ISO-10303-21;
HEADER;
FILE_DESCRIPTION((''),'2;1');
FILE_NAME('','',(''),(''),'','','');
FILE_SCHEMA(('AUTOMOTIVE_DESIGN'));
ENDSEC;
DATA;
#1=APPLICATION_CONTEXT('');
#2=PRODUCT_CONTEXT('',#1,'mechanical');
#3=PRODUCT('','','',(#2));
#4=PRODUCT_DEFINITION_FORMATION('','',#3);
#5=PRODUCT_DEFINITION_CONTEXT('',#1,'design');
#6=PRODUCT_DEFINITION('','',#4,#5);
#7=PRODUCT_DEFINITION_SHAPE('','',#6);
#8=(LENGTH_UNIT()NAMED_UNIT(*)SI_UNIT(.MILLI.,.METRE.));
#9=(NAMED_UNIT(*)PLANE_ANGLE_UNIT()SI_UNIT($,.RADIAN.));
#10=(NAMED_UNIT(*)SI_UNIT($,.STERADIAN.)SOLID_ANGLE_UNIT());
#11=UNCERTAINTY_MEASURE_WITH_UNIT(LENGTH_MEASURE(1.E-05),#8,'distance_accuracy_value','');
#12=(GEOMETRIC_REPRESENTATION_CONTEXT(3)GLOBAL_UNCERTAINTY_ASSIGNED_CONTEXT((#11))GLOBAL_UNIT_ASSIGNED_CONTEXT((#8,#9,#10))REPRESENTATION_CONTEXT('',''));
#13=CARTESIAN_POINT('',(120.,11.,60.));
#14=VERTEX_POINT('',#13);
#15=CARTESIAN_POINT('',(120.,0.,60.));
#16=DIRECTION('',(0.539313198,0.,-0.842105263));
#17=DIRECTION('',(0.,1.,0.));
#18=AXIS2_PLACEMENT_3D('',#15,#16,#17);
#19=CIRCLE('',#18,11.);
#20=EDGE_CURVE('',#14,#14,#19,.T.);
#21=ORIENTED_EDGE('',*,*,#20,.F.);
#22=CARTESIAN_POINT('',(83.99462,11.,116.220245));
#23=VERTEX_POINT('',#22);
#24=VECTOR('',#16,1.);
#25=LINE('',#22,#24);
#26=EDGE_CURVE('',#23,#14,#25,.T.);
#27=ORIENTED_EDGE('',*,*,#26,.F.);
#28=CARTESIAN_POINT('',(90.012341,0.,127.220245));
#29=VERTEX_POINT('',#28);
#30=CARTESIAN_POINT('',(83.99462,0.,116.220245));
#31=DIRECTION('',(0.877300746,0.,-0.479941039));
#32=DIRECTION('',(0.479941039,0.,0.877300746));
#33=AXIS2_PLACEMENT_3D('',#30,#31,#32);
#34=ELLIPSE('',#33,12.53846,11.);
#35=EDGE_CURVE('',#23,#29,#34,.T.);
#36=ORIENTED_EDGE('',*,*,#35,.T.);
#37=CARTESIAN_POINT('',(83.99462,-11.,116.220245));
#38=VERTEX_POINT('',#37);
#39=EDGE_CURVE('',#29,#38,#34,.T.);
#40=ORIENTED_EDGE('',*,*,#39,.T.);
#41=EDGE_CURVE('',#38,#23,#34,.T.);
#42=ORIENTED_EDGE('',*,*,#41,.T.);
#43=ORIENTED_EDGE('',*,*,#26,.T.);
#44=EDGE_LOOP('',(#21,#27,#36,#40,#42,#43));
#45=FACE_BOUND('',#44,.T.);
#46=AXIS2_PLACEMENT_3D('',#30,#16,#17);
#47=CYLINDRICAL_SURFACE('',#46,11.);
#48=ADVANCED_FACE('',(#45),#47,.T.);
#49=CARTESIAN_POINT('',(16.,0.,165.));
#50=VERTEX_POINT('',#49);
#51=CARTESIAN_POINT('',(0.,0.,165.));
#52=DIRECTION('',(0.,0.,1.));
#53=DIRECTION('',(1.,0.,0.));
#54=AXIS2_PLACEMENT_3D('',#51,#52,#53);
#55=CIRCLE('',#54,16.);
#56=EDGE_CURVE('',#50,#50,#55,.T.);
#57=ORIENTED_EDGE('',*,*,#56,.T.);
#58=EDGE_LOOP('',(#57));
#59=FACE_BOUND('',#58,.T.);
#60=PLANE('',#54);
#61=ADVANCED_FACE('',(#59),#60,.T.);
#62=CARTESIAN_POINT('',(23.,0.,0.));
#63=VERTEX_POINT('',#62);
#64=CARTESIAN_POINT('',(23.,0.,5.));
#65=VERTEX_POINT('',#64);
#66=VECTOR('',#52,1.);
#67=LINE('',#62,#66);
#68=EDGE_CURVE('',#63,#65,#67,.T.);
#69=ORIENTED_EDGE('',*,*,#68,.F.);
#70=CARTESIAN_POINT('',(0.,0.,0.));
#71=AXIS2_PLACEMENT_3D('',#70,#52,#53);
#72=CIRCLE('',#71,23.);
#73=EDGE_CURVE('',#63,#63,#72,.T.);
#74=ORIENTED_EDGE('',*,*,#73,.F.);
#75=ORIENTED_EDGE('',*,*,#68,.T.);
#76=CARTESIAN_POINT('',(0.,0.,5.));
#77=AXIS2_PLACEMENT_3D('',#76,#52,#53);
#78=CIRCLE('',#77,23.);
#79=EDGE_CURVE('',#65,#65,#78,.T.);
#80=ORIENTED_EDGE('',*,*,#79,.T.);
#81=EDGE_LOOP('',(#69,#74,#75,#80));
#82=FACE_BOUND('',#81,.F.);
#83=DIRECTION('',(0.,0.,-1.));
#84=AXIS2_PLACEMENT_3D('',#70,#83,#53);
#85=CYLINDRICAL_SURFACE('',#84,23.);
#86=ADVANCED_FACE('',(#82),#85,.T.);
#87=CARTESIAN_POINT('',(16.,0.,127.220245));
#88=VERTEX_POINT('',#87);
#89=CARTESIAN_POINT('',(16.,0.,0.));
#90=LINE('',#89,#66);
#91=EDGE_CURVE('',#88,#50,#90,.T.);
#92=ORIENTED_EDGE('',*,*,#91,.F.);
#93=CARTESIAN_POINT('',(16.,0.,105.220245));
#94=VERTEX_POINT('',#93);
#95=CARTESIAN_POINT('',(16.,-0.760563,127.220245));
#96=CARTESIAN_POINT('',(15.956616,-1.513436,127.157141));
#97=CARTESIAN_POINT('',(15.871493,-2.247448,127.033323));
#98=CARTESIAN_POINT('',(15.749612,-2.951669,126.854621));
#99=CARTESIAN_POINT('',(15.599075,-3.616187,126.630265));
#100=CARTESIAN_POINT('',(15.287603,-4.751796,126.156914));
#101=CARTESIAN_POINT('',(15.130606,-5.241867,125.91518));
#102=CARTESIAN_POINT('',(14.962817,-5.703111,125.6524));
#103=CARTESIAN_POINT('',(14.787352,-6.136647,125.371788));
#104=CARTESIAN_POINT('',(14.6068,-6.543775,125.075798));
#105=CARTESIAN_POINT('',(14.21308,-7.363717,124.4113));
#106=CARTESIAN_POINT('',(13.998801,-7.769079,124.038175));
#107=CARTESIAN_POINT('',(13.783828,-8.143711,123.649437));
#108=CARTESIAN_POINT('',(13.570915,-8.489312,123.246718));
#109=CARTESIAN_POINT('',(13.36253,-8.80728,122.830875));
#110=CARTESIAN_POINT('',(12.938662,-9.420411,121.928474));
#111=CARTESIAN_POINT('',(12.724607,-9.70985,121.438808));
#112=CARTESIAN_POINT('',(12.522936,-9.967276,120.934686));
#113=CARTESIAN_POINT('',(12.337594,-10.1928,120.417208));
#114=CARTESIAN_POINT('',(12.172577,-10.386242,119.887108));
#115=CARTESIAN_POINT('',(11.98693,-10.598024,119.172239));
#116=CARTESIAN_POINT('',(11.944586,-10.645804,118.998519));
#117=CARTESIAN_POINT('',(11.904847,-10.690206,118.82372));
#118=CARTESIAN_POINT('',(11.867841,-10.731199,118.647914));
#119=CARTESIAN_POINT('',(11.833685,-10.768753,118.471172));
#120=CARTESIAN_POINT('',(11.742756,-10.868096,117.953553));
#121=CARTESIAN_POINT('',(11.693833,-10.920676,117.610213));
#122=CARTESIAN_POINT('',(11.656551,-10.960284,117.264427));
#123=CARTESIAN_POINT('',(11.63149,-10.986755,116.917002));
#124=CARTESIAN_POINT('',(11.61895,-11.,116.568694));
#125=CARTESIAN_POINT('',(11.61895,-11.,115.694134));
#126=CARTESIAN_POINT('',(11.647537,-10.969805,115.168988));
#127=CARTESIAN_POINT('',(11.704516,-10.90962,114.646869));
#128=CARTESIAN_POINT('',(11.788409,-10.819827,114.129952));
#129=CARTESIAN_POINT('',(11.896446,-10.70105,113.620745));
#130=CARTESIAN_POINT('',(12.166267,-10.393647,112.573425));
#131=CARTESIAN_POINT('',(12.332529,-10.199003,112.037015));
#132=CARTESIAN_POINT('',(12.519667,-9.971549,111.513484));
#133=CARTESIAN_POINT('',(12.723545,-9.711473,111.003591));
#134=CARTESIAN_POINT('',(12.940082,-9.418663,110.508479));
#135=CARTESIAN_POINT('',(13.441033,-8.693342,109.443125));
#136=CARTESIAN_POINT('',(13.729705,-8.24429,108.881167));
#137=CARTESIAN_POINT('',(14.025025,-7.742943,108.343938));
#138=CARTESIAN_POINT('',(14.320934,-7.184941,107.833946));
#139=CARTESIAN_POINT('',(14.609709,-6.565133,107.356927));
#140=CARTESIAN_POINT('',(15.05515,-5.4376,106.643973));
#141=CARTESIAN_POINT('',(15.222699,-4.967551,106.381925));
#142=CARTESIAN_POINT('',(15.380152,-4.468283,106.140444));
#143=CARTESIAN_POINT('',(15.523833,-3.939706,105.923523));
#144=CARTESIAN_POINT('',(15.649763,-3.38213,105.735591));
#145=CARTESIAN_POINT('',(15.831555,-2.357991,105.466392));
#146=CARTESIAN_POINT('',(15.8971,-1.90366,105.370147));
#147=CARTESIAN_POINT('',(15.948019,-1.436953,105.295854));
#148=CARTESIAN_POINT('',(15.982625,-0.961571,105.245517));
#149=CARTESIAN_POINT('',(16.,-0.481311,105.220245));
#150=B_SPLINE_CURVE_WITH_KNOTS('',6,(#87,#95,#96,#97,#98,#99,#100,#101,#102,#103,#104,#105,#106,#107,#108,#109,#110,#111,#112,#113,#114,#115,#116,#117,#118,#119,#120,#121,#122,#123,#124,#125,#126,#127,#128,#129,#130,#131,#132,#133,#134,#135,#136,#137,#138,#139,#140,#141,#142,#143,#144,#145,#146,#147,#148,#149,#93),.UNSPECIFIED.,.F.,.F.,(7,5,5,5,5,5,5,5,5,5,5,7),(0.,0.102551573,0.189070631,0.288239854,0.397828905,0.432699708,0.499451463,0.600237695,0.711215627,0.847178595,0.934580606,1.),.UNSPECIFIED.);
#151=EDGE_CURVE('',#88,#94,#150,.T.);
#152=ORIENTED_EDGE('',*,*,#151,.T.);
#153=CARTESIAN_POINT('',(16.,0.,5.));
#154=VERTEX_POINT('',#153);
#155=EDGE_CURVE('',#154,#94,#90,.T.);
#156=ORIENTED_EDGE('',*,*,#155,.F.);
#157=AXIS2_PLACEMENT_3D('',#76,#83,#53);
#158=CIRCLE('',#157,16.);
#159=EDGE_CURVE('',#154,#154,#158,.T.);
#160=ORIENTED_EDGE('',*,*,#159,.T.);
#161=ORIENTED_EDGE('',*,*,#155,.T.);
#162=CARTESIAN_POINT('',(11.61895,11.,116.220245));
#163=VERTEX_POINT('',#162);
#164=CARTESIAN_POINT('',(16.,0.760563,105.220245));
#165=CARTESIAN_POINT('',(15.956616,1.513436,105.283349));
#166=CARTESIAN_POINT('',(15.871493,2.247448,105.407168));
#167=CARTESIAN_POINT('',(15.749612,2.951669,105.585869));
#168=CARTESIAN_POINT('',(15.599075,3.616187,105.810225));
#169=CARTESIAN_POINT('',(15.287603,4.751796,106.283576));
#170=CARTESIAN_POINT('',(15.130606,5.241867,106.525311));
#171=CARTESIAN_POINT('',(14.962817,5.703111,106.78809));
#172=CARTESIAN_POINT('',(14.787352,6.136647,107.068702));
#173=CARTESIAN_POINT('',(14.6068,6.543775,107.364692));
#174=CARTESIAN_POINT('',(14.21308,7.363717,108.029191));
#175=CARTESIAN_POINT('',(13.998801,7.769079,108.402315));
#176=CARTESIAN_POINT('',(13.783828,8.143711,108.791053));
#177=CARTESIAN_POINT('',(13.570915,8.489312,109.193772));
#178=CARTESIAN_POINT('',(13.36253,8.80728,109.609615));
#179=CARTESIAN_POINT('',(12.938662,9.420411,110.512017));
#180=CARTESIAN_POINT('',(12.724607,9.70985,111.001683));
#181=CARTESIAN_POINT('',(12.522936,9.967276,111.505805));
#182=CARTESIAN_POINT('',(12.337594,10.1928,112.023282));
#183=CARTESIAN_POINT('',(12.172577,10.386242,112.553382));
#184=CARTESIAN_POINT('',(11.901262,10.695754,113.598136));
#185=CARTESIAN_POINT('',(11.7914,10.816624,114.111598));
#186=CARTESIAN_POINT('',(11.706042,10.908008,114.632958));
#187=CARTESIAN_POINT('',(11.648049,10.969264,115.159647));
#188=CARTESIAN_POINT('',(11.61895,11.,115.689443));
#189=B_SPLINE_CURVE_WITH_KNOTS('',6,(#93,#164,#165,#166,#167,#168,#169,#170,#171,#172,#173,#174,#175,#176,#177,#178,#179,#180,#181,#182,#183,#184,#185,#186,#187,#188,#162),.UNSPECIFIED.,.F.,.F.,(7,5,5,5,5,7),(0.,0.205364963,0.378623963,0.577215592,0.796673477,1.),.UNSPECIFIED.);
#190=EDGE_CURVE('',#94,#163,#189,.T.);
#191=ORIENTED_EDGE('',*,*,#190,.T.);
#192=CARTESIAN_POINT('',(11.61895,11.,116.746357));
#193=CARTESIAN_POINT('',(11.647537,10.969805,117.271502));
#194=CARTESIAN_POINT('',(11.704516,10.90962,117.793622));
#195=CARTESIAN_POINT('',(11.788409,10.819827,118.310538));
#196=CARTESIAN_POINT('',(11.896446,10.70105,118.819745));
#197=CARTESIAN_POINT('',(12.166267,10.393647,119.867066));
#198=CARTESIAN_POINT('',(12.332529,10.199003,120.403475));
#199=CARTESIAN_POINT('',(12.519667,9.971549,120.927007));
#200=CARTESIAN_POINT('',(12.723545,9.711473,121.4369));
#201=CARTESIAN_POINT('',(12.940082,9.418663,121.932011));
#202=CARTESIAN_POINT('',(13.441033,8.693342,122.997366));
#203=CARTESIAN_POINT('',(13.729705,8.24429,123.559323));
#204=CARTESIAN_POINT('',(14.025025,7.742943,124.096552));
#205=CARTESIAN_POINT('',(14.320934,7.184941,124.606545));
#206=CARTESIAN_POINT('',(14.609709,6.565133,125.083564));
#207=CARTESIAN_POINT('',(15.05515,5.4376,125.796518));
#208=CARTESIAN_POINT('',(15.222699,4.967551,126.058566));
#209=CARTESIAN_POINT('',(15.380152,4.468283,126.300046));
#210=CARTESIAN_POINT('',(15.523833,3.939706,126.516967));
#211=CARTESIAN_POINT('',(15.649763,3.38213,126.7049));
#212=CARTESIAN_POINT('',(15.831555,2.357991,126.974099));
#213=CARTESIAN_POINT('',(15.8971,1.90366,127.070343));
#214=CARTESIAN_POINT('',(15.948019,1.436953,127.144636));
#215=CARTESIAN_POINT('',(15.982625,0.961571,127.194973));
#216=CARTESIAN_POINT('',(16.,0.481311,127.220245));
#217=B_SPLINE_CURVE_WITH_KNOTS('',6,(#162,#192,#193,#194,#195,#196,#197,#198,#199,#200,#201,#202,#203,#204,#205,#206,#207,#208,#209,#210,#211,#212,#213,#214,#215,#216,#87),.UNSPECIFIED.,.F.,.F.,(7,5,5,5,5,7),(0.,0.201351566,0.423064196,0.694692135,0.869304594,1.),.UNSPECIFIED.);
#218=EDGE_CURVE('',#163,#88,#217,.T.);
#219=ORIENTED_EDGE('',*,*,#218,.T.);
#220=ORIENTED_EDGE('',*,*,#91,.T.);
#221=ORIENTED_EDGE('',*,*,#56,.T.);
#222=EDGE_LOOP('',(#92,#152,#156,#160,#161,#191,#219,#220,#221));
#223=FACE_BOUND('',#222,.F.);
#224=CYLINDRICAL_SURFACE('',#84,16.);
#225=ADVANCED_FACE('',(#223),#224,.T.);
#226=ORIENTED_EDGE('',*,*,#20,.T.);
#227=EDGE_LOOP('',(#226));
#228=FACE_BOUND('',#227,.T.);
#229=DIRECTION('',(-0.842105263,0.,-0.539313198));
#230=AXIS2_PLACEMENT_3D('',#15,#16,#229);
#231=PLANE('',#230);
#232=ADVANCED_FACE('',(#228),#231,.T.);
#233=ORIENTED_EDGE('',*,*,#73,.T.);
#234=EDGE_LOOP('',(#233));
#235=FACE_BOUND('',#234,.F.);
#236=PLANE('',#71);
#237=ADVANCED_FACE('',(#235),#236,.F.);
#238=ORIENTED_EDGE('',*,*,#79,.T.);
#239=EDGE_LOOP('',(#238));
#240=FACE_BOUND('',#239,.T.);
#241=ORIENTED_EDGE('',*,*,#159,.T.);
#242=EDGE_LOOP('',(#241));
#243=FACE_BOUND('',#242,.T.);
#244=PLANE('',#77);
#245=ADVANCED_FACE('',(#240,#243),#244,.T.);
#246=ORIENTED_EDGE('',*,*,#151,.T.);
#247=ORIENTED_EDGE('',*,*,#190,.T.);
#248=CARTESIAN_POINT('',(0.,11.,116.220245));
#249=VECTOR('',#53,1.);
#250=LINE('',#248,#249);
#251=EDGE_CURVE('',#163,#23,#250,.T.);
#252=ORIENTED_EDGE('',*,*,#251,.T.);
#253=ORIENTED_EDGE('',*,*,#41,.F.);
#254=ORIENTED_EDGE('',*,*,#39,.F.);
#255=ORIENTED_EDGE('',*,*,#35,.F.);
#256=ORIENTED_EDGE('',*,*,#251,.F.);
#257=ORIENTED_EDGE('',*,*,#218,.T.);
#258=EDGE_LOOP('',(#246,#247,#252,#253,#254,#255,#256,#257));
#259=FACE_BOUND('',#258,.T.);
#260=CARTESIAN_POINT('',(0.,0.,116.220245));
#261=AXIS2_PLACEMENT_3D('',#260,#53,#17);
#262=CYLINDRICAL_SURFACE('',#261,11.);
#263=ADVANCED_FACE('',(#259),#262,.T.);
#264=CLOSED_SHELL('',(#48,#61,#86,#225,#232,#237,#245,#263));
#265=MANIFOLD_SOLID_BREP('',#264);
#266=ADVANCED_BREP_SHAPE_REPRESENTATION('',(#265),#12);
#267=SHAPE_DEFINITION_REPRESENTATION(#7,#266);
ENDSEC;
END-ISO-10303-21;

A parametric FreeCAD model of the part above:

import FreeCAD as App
import Part
import Sketcher

V = App.Vector

doc = App.newDocument("Part")
body = doc.addObject("PartDesign::Body", "Body")

sketch1 = body.newObject("Sketcher::SketchObject", "Sketch")
sketch1.AttachmentSupport = (doc.getObject("XY_Plane"), [""])
sketch1.MapMode = "FlatFace"
sketch1.addGeometry(Part.Circle(V(0, 0, 0), V(0, 0, 1), 16), False)
sketch1.addConstraint(Sketcher.Constraint("Coincident", 0, 3, -1, 1))
sketch1.addConstraint(Sketcher.Constraint("Diameter", 0, 32.0))
pad1 = body.newObject("PartDesign::Pad", "Pad")
pad1.Profile = sketch1
pad1.Length = 165

sketch2 = body.newObject("Sketcher::SketchObject", "Sketch001")
sketch2.AttachmentSupport = (doc.getObject("YZ_Plane"), [""])
sketch2.MapMode = "FlatFace"
sketch2.addGeometry(Part.Circle(V(0, 116, 0), V(0, 0, 1), 11), False)
sketch2.addConstraint(Sketcher.Constraint("PointOnObject", 0, 3, -2))
sketch2.addConstraint(Sketcher.Constraint("Diameter", 0, 22.0))
sketch2.addConstraint(Sketcher.Constraint("DistanceY", -1, 1, 0, 3, 116.220245))

sketch3 = body.newObject("Sketcher::SketchObject", "Sketch002")
sketch3.AttachmentSupport = (doc.getObject("XZ_Plane"), [""])
sketch3.MapMode = "FlatFace"
sketch3.addGeometry(Part.LineSegment(V(0, 116, 0), V(84, 116, 0)), False)
sketch3.addGeometry(Part.LineSegment(V(84, 116, 0), V(120, 60, 0)), False)
sketch3.addConstraint(Sketcher.Constraint("Coincident", 0, 2, 1, 1))
sketch3.addConstraint(Sketcher.Constraint("Horizontal", 0))
sketch3.addConstraint(Sketcher.Constraint("PointOnObject", 0, 1, -2))
sketch3.addConstraint(Sketcher.Constraint("DistanceX", -1, 1, 1, 2, 120.0))
sketch3.addConstraint(Sketcher.Constraint("DistanceY", -1, 1, 1, 2, 60.0))
sketch3.addConstraint(Sketcher.Constraint("DistanceX", 0, 1, 0, 2, 83.99462))
sketch3.addConstraint(Sketcher.Constraint("Distance", 1, 66.761541))
doc.recompute()

additivepipe = body.newObject("PartDesign::AdditivePipe", "AdditivePipe")
additivepipe.Profile = sketch2
additivepipe.Spine = (sketch3, ["Edge1", "Edge2"])
additivepipe.Transition = "Right corner"

sketch4 = body.newObject("Sketcher::SketchObject", "Sketch003")
sketch4.AttachmentSupport = (doc.getObject("XY_Plane"), [""])
sketch4.MapMode = "FlatFace"
sketch4.addGeometry(Part.Circle(V(0, 0, 0), V(0, 0, 1), 23), False)
sketch4.addConstraint(Sketcher.Constraint("Coincident", 0, 3, -1, 1))
sketch4.addConstraint(Sketcher.Constraint("Diameter", 0, 46.0))
pad2 = body.newObject("PartDesign::Pad", "Pad001")
pad2.Profile = sketch4
pad2.Length = 5

doc.recompute()
